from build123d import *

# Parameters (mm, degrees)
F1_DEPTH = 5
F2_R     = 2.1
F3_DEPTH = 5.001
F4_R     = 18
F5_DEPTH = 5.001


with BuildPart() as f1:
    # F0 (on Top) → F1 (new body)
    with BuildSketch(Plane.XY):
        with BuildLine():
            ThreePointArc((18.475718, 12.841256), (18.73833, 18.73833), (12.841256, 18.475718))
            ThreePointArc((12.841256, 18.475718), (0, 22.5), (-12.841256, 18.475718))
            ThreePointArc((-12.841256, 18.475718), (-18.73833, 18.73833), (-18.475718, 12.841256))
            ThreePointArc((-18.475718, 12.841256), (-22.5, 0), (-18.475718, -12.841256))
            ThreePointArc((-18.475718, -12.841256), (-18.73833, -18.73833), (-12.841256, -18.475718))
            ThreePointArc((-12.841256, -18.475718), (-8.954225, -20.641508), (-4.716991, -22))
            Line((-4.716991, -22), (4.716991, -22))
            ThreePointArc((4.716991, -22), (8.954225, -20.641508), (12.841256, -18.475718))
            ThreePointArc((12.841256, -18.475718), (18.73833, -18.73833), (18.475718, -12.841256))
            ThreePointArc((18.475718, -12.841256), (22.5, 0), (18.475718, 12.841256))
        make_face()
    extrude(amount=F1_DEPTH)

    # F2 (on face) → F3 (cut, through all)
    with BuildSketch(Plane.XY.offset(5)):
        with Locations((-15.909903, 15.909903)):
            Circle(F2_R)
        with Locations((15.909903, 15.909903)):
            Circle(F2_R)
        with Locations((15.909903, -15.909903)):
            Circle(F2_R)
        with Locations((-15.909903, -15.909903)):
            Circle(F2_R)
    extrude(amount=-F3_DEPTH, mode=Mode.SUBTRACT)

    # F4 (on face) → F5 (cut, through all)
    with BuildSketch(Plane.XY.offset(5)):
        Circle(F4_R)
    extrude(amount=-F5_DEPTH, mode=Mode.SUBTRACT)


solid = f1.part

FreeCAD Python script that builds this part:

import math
import FreeCAD as App
import Part
import Sketcher

V = App.Vector

doc = App.newDocument("Part")
body = doc.addObject("PartDesign::Body", "Body")

# Sketch on XY plane
sketch1 = doc.addObject("Sketcher::SketchObject", "Sketch")
body.addObject(sketch1)
sketch1.AttachmentSupport = (doc.XY_Plane, [""])
sketch1.MapMode = "FlatFace"
sketch1.addGeometry([
    Part.ArcOfCircle(Part.Circle(V(15.909903, 15.909903, 0), V(0, 0, 1), 4), math.radians(-50.09969), math.radians(140.09969)),  # 0
    Part.ArcOfCircle(Part.Circle(V(0, -0.000001, 0), V(0, 0, 1), 22.500001), math.radians(55.19938), math.radians(124.80062)),  # 1
    Part.ArcOfCircle(Part.Circle(V(-15.909903, 15.909903, 0), V(0, 0, 1), 4), math.radians(39.90031), math.radians(230.09969)),  # 2
    Part.ArcOfCircle(Part.Circle(V(0.000001, 0, 0), V(0, 0, 1), 22.500001), math.radians(145.19938), math.radians(214.80062)),  # 3
    Part.ArcOfCircle(Part.Circle(V(-15.909903, -15.909903, 0), V(0, 0, 1), 4), math.radians(129.90031), math.radians(320.09969)),  # 4
    Part.ArcOfCircle(Part.Circle(V(0.000004, 0.00001, 0), V(0, 0, 1), 22.500011), math.radians(-124.800615), math.radians(-102.101498)),  # 5
    Part.LineSegment(V(-4.716991, -22, 0), V(4.716991, -22, 0)),  # 6
    Part.ArcOfCircle(Part.Circle(V(-0.000004, 0.00001, 0), V(0, 0, 1), 22.500011), math.radians(-77.898502), math.radians(-55.199385)),  # 7
    Part.ArcOfCircle(Part.Circle(V(15.909903, -15.909903, 0), V(0, 0, 1), 4), math.radians(-140.09969), math.radians(50.09969)),  # 8
    Part.ArcOfCircle(Part.Circle(V(-0.000001, 0, 0), V(0, 0, 1), 22.500001), math.radians(-34.80062), math.radians(34.80062)),  # 9
], False)
sketch1.addConstraint([
    Sketcher.Constraint("Coincident", 0, 2, 1, 1),
    Sketcher.Constraint("Coincident", 1, 2, 2, 1),
    Sketcher.Constraint("Coincident", 2, 2, 3, 1),
    Sketcher.Constraint("Coincident", 3, 2, 4, 1),
    Sketcher.Constraint("Coincident", 4, 2, 5, 1),
    Sketcher.Constraint("Coincident", 5, 2, 6, 1),
    Sketcher.Constraint("Coincident", 6, 2, 7, 1),
    Sketcher.Constraint("Coincident", 7, 2, 8, 1),
    Sketcher.Constraint("Coincident", 8, 2, 9, 1),
    Sketcher.Constraint("Coincident", 9, 2, 0, 1),
    Sketcher.Constraint("Horizontal", 6),
    Sketcher.Constraint("Coincident", 1, 3, -1, 1),
    Sketcher.Constraint("Coincident", 3, 3, -1, 1),
    Sketcher.Constraint("Coincident", 9, 3, -1, 1),
    Sketcher.Constraint("Coincident", 7, 3, 5, 3),
    Sketcher.Constraint("Equal", 0, 2),
    Sketcher.Constraint("Equal", 1, 3),
    Sketcher.Constraint("Equal", 2, 4),
    Sketcher.Constraint("Equal", 5, 7),
    Sketcher.Constraint("Equal", 4, 8),
    Sketcher.Constraint("Equal", 3, 9),
    Sketcher.Constraint("Symmetric", 0, 3, 4, 3, -1, 1),
    Sketcher.Constraint("Symmetric", 1, 3, 5, 3, -1, 1),
    Sketcher.Constraint("Symmetric", 2, 3, 8, 3, -1, 1),
    Sketcher.Constraint("Symmetric", 0, 3, 2, 3, -2),
    Sketcher.Constraint("Vertical", 1, 2, 4, 2),
    Sketcher.Constraint("Radius", 0, 4.0),
    Sketcher.Constraint("Radius", 1, 22.500001),
    Sketcher.Constraint("DistanceY", 5, 2, -1, 1, 22.0),
    Sketcher.Constraint("DistanceX", 3, 3, 0, 3, 15.909901),
    Sketcher.Constraint("DistanceY", 4, 3, 1, 3, 15.909901),
])
pad1 = doc.addObject("PartDesign::Pad", "Pad")
body.addObject(pad1)
pad1.Profile = sketch1
pad1.Length = 5

# Sketch on XY plane
sketch2 = doc.addObject("Sketcher::SketchObject", "Sketch001")
body.addObject(sketch2)
sketch2.AttachmentSupport = (doc.XY_Plane, [""])
sketch2.MapMode = "FlatFace"
sketch2.AttachmentOffset = App.Placement(V(0, 0, 5), App.Rotation())
sketch2.addGeometry([
    Part.Circle(V(-15.9, 15.9, 0), V(0, 0, 1), 2.1),
    Part.Circle(V(15.9, 15.9, 0), V(0, 0, 1), 2.1),
    Part.Circle(V(15.9, -15.9, 0), V(0, 0, 1), 2.1),
    Part.Circle(V(-15.9, -15.9, 0), V(0, 0, 1), 2.1),
], False)
sketch2.addConstraint([
    Sketcher.Constraint("Equal", 0, 1),
    Sketcher.Constraint("Equal", 1, 2),
    Sketcher.Constraint("Equal", 2, 3),
    Sketcher.Constraint("Symmetric", 0, 3, 2, 3, -1, 1),
    Sketcher.Constraint("Symmetric", 1, 3, 3, 3, -1, 1),
    Sketcher.Constraint("Symmetric", 0, 3, 1, 3, -2),
    Sketcher.Constraint("Diameter", 0, 4.2),
    Sketcher.Constraint("DistanceX", 0, 3, -1, 1, 15.909903),
    Sketcher.Constraint("DistanceY", -1, 1, 0, 3, 15.909903),
])
pocket1 = doc.addObject("PartDesign::Pocket", "Pocket")
body.addObject(pocket1)
pocket1.Profile = sketch2
pocket1.Type = "ThroughAll"

# Sketch on XY plane
sketch3 = doc.addObject("Sketcher::SketchObject", "Sketch002")
body.addObject(sketch3)
sketch3.AttachmentSupport = (doc.XY_Plane, [""])
sketch3.MapMode = "FlatFace"
sketch3.AttachmentOffset = App.Placement(V(0, 0, 5), App.Rotation())
sketch3.addGeometry(Part.Circle(V(0, 0, 0), V(0, 0, 1), 18), False)
sketch3.addConstraint([
    Sketcher.Constraint("Coincident", 0, 3, -1, 1),
    Sketcher.Constraint("Diameter", 0, 36.0),
])
pocket2 = doc.addObject("PartDesign::Pocket", "Pocket001")
body.addObject(pocket2)
pocket2.Profile = sketch3
pocket2.Type = "ThroughAll"

doc.recompute()
